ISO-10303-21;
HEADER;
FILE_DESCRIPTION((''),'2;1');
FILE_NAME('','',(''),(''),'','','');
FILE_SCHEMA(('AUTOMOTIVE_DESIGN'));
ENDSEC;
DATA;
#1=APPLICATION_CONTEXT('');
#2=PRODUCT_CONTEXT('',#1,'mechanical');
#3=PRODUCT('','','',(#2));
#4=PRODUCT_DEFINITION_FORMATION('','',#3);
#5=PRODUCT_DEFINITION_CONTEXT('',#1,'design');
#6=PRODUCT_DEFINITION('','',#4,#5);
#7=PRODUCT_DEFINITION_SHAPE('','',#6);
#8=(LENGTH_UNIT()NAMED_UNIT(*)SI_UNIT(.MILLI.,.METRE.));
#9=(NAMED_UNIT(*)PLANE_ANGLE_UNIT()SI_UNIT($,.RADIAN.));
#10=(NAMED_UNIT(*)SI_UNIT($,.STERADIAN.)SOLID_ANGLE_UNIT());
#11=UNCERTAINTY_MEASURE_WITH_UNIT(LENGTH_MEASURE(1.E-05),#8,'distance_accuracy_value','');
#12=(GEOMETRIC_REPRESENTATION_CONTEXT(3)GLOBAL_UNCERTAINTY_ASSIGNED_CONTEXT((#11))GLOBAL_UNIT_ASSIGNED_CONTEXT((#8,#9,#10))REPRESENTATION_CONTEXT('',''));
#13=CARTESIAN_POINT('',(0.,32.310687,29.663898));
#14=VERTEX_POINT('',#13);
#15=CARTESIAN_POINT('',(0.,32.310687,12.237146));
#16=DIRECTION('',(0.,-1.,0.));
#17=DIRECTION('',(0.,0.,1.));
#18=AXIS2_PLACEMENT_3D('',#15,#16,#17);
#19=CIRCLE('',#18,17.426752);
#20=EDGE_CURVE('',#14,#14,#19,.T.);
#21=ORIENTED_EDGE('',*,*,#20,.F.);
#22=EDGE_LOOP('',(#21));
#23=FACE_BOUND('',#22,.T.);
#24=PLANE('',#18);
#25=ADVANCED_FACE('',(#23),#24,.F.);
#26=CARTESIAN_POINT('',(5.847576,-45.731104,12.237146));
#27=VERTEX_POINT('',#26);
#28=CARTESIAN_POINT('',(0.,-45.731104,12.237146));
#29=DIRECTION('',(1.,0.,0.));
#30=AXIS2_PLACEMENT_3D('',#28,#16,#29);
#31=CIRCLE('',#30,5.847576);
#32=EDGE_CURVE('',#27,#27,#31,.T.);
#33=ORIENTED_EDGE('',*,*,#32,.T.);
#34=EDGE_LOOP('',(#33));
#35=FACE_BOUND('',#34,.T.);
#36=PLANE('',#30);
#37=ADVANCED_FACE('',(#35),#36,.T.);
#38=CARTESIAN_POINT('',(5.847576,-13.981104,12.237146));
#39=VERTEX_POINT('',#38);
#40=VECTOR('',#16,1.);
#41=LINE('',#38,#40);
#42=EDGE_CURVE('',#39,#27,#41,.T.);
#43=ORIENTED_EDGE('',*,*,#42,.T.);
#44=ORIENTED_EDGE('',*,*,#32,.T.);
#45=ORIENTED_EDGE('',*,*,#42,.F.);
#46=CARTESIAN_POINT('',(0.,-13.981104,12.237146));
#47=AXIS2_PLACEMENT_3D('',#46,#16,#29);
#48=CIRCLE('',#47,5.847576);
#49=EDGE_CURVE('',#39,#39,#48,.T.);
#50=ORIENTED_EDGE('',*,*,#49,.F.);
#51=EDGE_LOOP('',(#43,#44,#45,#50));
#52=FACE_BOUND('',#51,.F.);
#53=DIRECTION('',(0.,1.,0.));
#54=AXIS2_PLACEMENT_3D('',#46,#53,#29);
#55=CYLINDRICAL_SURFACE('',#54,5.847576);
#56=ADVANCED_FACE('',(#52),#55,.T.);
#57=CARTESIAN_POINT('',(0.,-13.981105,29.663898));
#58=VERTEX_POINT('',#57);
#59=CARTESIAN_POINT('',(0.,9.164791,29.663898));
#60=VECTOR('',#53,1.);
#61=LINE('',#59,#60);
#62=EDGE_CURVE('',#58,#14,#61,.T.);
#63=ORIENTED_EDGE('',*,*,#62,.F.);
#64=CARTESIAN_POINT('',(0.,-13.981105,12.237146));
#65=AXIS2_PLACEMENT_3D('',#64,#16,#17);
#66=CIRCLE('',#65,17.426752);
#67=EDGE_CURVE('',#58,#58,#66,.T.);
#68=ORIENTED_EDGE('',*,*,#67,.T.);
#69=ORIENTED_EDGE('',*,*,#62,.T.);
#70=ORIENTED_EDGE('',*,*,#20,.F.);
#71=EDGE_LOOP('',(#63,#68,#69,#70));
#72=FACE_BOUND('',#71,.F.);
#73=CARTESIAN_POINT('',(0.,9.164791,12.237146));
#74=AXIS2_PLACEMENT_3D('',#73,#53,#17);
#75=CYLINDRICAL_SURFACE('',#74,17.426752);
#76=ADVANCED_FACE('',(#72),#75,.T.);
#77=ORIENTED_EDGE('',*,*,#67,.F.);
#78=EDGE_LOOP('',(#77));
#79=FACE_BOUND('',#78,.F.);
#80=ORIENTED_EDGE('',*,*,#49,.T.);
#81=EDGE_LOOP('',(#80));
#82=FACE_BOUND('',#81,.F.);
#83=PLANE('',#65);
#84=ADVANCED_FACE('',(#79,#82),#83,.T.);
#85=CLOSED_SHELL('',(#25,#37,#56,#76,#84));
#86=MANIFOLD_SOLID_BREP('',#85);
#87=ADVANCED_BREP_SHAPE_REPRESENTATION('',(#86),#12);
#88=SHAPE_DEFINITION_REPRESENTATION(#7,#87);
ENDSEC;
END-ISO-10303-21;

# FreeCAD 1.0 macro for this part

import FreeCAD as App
import Part
import Sketcher
Q = App.Units.Quantity


def add_polygon(sketch, points):
    """Adds a closed chain of lines whose ends are joined by coincident constraints."""
    first, n = sketch.GeometryCount, len(points)
    for a, b in zip(points, points[1:] + points[:1]):
        sketch.addGeometry(Part.LineSegment(App.Vector(*a, 0), App.Vector(*b, 0)), False)
    for i in range(n):
        sketch.addConstraint(Sketcher.Constraint("Coincident", first + i, 2, first + (i + 1) % n, 1))

doc = App.newDocument("Part")
params = doc.addObject("Spreadsheet::Sheet", "Params")
for row, (alias, value) in enumerate([
    ("revolution_angle", "360 deg"),
    ("pad1_length", "1.25 in"),
], start=1):
    params.set(f"A{row}", alias)
    params.set(f"B{row}", "=" + value)
    params.setAlias(f"B{row}", alias)

body = doc.addObject("PartDesign::Body", "Body")

# Sketch on YZ plane
sketch1 = body.newObject("Sketcher::SketchObject", "Sketch")
sketch1.AttachmentSupport = (doc.getObject("YZ_Plane"), [""])
sketch1.MapMode = "FlatFace"
add_polygon(sketch1, [(-14, 30), (-14, 12), (32, 12), (32, 30)])  # lines 0-3
sketch1.addGeometry(Part.LineSegment(App.Vector(32, 12, 0), App.Vector(-14, 12, 0)), True)  # axis
sketch1.addConstraint([
    Sketcher.Constraint("Vertical", 0),
    Sketcher.Constraint("Horizontal", 1),
    Sketcher.Constraint("Vertical", 2),
    Sketcher.Constraint("Horizontal", 3),
    Sketcher.Constraint("Horizontal", 4),
    Sketcher.Constraint("Coincident", 4, 1, 1, 2),
    Sketcher.Constraint("Vertical", 3, 2, 4, 2),
    Sketcher.Constraint("DistanceX", 1, 1, 1, 2, Q("46.291791 mm")),
    Sketcher.Constraint("DistanceY", 0, 2, 0, 1, Q("17.426752 mm")),
    Sketcher.Constraint("DistanceX", 0, 2, -1, 1, Q("13.981105 mm")),
    Sketcher.Constraint("DistanceY", -1, 1, 0, 2, Q("12.237146 mm")),
])
revolution = body.newObject("PartDesign::Revolution", "Revolution")
revolution.Profile = sketch1
revolution.ReferenceAxis = (sketch1, ["Axis0"])
revolution.setExpression("Angle", "Params.revolution_angle")

# Sketch on XZ plane
sketch2 = body.newObject("Sketcher::SketchObject", "Sketch001")
sketch2.AttachmentSupport = (doc.getObject("XZ_Plane"), [""])
sketch2.MapMode = "FlatFace"
sketch2.AttachmentOffset = App.Placement(App.Vector(0, 0, 13.981104), App.Rotation())
sketch2.addGeometry(Part.Circle(App.Vector(0, 12, 0), App.Vector(0, 0, 1), 6), False)
sketch2.addConstraint([
    Sketcher.Constraint("PointOnObject", 0, 3, -2),
    Sketcher.Constraint("Diameter", 0, Q("11.695152 mm")),
    Sketcher.Constraint("DistanceY", -1, 1, 0, 3, Q("12.237146 mm")),
])
pad1 = body.newObject("PartDesign::Pad", "Pad")
pad1.Profile = sketch2
pad1.setExpression("Length", "Params.pad1_length")

doc.recompute()
